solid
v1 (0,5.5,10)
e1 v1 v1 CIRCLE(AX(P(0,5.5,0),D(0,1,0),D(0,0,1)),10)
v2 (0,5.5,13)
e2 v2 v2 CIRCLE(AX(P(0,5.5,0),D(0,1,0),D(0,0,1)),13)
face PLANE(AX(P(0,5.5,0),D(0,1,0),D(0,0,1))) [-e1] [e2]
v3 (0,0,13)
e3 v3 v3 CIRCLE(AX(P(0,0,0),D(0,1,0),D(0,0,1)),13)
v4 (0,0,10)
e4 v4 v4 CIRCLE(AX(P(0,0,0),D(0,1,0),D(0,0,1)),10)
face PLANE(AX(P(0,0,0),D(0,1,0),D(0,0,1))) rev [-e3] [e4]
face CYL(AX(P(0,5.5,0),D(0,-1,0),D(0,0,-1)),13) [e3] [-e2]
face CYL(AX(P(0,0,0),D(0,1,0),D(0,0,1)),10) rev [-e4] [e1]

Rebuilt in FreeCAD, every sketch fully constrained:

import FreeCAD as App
import Part
import Sketcher

doc = App.newDocument("Part")
params = doc.addObject("Spreadsheet::Sheet", "Params")
for row, (alias, value) in enumerate([
    ("sketch1_diameter", "26 mm"),
    ("pad1_length", "5.5 mm"),
    ("sketch2_diameter", "20 mm"),
    ("pocket1_length", "5.5 mm"),
], start=1):
    params.set(f"A{row}", alias)
    params.set(f"B{row}", "=" + value)
    params.setAlias(f"B{row}", alias)

body = doc.addObject("PartDesign::Body", "Body")

# Sketch on XZ plane
sketch1 = body.newObject("Sketcher::SketchObject", "Sketch")
sketch1.AttachmentSupport = (doc.getObject("XZ_Plane"), [""])
sketch1.MapMode = "FlatFace"
sketch1.addGeometry(Part.Circle(App.Vector(0, 0, 0), App.Vector(0, 0, 1), 13), False)
sketch1.addConstraint(Sketcher.Constraint("Coincident", 0, 3, -1, 1))
sketch1.addConstraint(Sketcher.Constraint("Diameter", 0, 26.0))
sketch1.setExpression("Constraints[1]", "Params.sketch1_diameter")
pad1 = body.newObject("PartDesign::Pad", "Pad")
pad1.Profile = sketch1
pad1.setExpression("Length", "Params.pad1_length")
pad1.Reversed = True

# Sketch on XZ plane
sketch2 = body.newObject("Sketcher::SketchObject", "Sketch001")
sketch2.AttachmentSupport = (doc.getObject("XZ_Plane"), [""])
sketch2.MapMode = "FlatFace"
sketch2.AttachmentOffset = App.Placement(App.Vector(0, 0, -5.5), App.Rotation())
sketch2.addGeometry(Part.Circle(App.Vector(0, 0, 0), App.Vector(0, 0, 1), 10), False)
sketch2.addConstraint(Sketcher.Constraint("Coincident", 0, 3, -1, 1))
sketch2.addConstraint(Sketcher.Constraint("Diameter", 0, 20.0))
sketch2.setExpression("Constraints[1]", "Params.sketch2_diameter")
pocket1 = body.newObject("PartDesign::Pocket", "Pocket")
pocket1.Profile = sketch2
pocket1.setExpression("Length", "Params.pocket1_length")
pocket1.Reversed = True

doc.recompute()
